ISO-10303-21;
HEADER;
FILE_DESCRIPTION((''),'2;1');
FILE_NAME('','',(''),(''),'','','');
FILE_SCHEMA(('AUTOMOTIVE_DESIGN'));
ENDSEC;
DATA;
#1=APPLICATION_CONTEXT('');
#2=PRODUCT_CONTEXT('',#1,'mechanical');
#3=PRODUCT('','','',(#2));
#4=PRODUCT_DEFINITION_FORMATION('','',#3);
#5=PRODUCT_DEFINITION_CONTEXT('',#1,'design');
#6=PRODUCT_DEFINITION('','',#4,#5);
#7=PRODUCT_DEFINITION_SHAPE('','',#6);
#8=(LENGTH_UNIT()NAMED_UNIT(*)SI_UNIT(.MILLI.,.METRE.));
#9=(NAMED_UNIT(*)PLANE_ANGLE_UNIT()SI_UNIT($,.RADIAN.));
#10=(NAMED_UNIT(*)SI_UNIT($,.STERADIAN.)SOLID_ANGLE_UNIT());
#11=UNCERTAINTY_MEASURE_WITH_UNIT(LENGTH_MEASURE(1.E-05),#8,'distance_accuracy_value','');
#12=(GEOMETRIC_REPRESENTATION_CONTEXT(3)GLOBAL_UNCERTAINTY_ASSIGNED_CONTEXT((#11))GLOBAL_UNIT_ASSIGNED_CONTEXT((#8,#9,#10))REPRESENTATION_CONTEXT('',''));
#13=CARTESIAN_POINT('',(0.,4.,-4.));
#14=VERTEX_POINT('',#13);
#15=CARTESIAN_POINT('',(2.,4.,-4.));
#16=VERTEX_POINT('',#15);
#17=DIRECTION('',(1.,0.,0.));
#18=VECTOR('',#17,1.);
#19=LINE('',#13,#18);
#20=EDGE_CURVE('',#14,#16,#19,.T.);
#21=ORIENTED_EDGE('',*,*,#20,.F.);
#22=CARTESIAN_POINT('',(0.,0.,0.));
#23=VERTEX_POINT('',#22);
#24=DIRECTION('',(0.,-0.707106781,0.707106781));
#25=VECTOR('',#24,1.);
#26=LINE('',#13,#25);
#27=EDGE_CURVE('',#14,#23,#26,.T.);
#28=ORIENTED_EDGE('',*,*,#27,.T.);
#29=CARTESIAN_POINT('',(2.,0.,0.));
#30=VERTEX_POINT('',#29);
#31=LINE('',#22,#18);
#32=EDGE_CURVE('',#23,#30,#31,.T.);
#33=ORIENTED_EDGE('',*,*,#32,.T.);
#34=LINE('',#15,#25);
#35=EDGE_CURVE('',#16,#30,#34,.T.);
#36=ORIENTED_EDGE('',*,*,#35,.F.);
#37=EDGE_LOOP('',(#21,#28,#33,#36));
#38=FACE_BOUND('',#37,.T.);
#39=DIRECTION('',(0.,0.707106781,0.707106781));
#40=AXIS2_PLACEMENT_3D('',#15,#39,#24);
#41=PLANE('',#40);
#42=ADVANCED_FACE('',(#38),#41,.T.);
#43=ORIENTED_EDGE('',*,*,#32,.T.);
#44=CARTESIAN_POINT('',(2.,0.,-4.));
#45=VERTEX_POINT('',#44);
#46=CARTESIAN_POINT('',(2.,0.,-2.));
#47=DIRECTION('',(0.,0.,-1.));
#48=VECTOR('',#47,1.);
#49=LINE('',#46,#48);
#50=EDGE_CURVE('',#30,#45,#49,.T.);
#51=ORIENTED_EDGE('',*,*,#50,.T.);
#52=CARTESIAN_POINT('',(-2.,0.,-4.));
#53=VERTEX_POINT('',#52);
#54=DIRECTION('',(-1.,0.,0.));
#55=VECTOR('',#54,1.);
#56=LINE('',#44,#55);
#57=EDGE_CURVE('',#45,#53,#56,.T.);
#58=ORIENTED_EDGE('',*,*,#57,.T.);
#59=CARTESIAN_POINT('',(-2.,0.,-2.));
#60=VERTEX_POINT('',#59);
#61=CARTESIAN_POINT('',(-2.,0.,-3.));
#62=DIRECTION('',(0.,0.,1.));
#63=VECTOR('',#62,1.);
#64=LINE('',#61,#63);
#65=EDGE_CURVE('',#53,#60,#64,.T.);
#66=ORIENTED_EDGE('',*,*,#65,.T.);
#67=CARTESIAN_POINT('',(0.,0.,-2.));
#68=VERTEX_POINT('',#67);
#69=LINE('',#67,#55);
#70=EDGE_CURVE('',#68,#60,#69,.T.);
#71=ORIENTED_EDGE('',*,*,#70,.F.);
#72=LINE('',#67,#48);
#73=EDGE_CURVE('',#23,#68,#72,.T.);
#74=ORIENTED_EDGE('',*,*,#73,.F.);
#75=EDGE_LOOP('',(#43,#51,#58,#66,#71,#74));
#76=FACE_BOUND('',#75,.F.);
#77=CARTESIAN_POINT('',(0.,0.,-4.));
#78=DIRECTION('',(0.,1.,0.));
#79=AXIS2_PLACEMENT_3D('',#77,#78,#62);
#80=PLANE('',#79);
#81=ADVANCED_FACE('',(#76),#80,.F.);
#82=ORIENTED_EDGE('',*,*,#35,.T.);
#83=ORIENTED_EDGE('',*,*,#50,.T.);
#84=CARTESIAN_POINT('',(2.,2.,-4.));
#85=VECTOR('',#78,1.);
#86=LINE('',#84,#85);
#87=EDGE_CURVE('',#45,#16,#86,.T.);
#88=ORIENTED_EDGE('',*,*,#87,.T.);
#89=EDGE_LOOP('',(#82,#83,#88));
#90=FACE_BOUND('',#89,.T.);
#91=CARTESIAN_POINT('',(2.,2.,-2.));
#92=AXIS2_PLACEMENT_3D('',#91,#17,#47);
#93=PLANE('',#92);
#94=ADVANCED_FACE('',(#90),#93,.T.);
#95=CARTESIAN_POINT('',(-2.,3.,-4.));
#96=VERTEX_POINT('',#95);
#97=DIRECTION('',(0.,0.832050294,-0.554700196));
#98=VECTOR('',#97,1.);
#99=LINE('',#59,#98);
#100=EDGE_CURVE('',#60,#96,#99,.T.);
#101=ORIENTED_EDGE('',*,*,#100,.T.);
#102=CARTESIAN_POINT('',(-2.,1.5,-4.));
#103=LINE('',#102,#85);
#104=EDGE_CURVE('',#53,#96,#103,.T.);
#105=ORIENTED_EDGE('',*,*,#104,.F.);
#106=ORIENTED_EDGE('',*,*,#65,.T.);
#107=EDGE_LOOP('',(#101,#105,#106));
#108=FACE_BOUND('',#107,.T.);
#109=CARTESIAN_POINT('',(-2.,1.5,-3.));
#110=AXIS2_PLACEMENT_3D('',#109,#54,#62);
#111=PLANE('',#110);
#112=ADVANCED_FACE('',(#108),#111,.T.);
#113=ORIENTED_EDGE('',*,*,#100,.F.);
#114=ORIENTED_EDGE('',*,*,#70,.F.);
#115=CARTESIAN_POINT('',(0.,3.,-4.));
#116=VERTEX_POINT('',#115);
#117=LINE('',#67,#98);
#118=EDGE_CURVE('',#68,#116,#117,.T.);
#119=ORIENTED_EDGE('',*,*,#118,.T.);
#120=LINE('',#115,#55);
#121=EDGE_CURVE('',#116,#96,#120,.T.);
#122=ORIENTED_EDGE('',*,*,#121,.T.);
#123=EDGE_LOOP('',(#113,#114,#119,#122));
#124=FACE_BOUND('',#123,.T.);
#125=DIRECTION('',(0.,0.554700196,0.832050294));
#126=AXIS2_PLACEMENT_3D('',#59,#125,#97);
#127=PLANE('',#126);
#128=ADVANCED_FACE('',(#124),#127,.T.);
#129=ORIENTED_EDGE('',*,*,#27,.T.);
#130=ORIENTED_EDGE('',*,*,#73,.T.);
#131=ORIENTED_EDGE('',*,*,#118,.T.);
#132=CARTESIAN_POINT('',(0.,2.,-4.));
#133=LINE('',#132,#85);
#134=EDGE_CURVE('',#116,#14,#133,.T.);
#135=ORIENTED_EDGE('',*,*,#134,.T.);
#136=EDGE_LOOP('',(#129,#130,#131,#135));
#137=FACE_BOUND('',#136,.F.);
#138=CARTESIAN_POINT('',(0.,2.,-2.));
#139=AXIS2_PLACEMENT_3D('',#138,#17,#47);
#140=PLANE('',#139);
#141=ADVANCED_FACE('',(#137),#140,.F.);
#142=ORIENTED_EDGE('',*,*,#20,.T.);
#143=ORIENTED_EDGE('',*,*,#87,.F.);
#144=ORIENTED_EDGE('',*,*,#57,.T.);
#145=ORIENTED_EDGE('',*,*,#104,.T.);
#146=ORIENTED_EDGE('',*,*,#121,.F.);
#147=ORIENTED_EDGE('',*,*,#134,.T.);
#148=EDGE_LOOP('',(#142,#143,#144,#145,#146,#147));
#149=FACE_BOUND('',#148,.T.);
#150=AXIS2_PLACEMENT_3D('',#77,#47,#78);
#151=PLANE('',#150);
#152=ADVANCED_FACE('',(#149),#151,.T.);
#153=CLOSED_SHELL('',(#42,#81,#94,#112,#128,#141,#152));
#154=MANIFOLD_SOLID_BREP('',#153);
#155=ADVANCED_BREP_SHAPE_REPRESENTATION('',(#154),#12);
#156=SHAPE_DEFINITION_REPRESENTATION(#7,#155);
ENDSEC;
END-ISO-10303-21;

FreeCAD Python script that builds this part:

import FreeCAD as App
import Part
import Sketcher
from FreeCAD import Vector
Q = App.Units.Quantity


def add_polygon(sketch, points):
    """Adds a closed chain of lines whose ends are joined by coincident constraints."""
    first, n = sketch.GeometryCount, len(points)
    for a, b in zip(points, points[1:] + points[:1]):
        sketch.addGeometry(Part.LineSegment(App.Vector(*a, 0), App.Vector(*b, 0)), False)
    for i in range(n):
        sketch.addConstraint(Sketcher.Constraint("Coincident", first + i, 2, first + (i + 1) % n, 1))

doc = App.newDocument("Part")
body = doc.addObject("PartDesign::Body", "Body")

sketch1 = body.newObject("Sketcher::SketchObject", "Sketch")
sketch1.AttachmentSupport = (doc.getObject("YZ_Plane"), [""])
sketch1.MapMode = "FlatFace"
add_polygon(sketch1, [(4, 0), (0, 0), (0, -4), (4, -4)])
sketch1.addConstraint(Sketcher.Constraint("Horizontal", 0))
sketch1.addConstraint(Sketcher.Constraint("Vertical", 1))
sketch1.addConstraint(Sketcher.Constraint("Horizontal", 2))
sketch1.addConstraint(Sketcher.Constraint("Vertical", 3))
sketch1.addConstraint(Sketcher.Constraint("Coincident", 0, 2, -1, 1))
sketch1.addConstraint(Sketcher.Constraint("Equal", 2, 1))
sketch1.addConstraint(Sketcher.Constraint("DistanceX", 0, 2, 0, 1, Q("4 mm")))
pad1 = body.newObject("PartDesign::Pad", "Pad")
pad1.Profile = sketch1
pad1.Length = 2

sketch2 = body.newObject("Sketcher::SketchObject", "Sketch001")
sketch2.AttachmentSupport = (doc.getObject("YZ_Plane"), [""])
sketch2.MapMode = "FlatFace"
add_polygon(sketch2, [(3, -4), (0, -4), (0, -2), (3, -2)])
sketch2.addConstraint(Sketcher.Constraint("Horizontal", 0))
sketch2.addConstraint(Sketcher.Constraint("Vertical", 1))
sketch2.addConstraint(Sketcher.Constraint("Horizontal", 2))
sketch2.addConstraint(Sketcher.Constraint("Vertical", 3))
sketch2.addConstraint(Sketcher.Constraint("PointOnObject", 0, 2, -2))
sketch2.addConstraint(Sketcher.Constraint("DistanceX", 0, 2, 0, 1, Q("3 mm")))
sketch2.addConstraint(Sketcher.Constraint("DistanceY", 1, 1, 1, 2, Q("2 mm")))
sketch2.addConstraint(Sketcher.Constraint("DistanceY", 0, 2, -1, 1, Q("4 mm")))
pad2 = body.newObject("PartDesign::Pad", "Pad001")
pad2.Profile = sketch2
pad2.Length = 2
pad2.Reversed = True

sketch3 = body.newObject("Sketcher::SketchObject", "Sketch002")
sketch3.AttachmentSupport = (doc.getObject("YZ_Plane"), [""])
sketch3.MapMode = "FlatFace"
sketch3.AttachmentOffset = App.Placement(Vector(0, 0, -2), App.Rotation())
add_polygon(sketch3, [(3, -2), (3, -4), (0, -2)])
sketch3.addConstraint(Sketcher.Constraint("Vertical", 0))
sketch3.addConstraint(Sketcher.Constraint("Horizontal", 2))
sketch3.addConstraint(Sketcher.Constraint("PointOnObject", 1, 2, -2))
sketch3.addConstraint(Sketcher.Constraint("DistanceX", 2, 1, 2, 2, Q("3 mm")))
sketch3.addConstraint(Sketcher.Constraint("DistanceY", 0, 2, 0, 1, Q("2 mm")))
sketch3.addConstraint(Sketcher.Constraint("DistanceY", 0, 2, -1, 1, Q("4 mm")))
pocket1 = body.newObject("PartDesign::Pocket", "Pocket")
pocket1.Profile = sketch3
pocket1.Length = 2
pocket1.Reversed = True

sketch4 = body.newObject("Sketcher::SketchObject", "Sketch003")
sketch4.AttachmentSupport = (doc.getObject("YZ_Plane"), [""])
sketch4.MapMode = "FlatFace"
sketch4.AttachmentOffset = App.Placement(Vector(0, 0, 2), App.Rotation())
add_polygon(sketch4, [(0, 0), (4, -4), (4, 0)])
sketch4.addConstraint(Sketcher.Constraint("Vertical", 1))
sketch4.addConstraint(Sketcher.Constraint("Horizontal", 2))
sketch4.addConstraint(Sketcher.Constraint("Coincident", 2, 2, -1, 1))
sketch4.addConstraint(Sketcher.Constraint("Equal", 2, 1))
sketch4.addConstraint(Sketcher.Constraint("DistanceX", 2, 2, 2, 1, Q("4 mm")))
pocket2 = body.newObject("PartDesign::Pocket", "Pocket001")
pocket2.Profile = sketch4
pocket2.Length = 2

doc.recompute()
